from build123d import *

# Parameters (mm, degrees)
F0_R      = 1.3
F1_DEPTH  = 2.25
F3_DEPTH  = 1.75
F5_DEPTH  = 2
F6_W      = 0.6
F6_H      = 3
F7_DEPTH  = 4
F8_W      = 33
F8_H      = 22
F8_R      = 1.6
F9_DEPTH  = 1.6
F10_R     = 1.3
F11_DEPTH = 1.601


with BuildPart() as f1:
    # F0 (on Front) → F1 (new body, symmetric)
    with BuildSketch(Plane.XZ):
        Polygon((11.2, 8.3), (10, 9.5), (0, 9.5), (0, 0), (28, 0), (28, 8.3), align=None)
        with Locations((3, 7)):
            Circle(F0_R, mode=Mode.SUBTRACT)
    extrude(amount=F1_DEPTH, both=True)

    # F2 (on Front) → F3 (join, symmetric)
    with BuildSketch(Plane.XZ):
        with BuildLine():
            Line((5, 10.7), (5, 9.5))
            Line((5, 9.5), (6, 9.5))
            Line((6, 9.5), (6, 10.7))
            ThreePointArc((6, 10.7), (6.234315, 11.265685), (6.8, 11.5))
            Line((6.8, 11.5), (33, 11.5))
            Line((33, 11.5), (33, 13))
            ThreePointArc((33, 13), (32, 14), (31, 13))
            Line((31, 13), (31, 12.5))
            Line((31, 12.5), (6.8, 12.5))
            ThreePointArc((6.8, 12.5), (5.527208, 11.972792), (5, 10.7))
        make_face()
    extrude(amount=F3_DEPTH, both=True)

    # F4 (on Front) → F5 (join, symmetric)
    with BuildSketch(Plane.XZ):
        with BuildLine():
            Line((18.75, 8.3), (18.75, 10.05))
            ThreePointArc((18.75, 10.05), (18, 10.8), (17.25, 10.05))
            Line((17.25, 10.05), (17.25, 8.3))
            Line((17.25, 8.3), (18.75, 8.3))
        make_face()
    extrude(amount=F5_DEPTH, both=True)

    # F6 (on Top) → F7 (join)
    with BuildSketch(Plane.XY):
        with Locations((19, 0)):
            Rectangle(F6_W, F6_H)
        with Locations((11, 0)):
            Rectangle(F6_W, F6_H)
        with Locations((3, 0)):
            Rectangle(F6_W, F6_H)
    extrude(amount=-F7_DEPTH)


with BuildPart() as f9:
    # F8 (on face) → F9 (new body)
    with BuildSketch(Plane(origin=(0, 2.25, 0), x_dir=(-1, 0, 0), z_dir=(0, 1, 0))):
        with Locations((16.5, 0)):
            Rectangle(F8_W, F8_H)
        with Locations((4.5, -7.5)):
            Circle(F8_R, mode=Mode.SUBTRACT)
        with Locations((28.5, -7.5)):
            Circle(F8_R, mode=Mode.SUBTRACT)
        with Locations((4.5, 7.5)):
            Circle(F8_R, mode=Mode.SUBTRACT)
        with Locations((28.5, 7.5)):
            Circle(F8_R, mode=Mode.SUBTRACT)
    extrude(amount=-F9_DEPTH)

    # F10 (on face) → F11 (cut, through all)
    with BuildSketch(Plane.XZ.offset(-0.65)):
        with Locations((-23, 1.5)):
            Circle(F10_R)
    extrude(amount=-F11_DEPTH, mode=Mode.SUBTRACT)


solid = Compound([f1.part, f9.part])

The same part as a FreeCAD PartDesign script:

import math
import FreeCAD as App
import Part
import Sketcher
from FreeCAD import Vector
Q = App.Units.Quantity

doc = App.newDocument("Part")
body = doc.addObject("PartDesign::Body", "Body")

# Sketch on XZ plane
sketch1 = doc.addObject("Sketcher::SketchObject", "Sketch")
body.addObject(sketch1)
sketch1.AttachmentSupport = (doc.XZ_Plane, [""])
sketch1.MapMode = "FlatFace"
sketch1.addGeometry([
    Part.LineSegment(Vector(11.2, 8.3, 0), Vector(10, 9.5, 0)),  # 0
    Part.LineSegment(Vector(10, 9.5, 0), Vector(0, 9.5, 0)),  # 1
    Part.LineSegment(Vector(0, 9.5, 0), Vector(0, 0, 0)),  # 2
    Part.LineSegment(Vector(0, 0, 0), Vector(28, 0, 0)),  # 3
    Part.LineSegment(Vector(28, 0, 0), Vector(28, 8.3, 0)),  # 4
    Part.LineSegment(Vector(28, 8.3, 0), Vector(11.2, 8.3, 0)),  # 5
    Part.Circle(Vector(3, 7, 0), Vector(0, 0, 1), 1.3),  # 6
], False)
sketch1.addConstraint([
    Sketcher.Constraint("Coincident", 0, 2, 1, 1),
    Sketcher.Constraint("Coincident", 1, 2, 2, 1),
    Sketcher.Constraint("Coincident", 2, 2, 3, 1),
    Sketcher.Constraint("Coincident", 3, 2, 4, 1),
    Sketcher.Constraint("Coincident", 4, 2, 5, 1),
    Sketcher.Constraint("Coincident", 5, 2, 0, 1),
    Sketcher.Constraint("Horizontal", 1),
    Sketcher.Constraint("Vertical", 2),
    Sketcher.Constraint("Horizontal", 3),
    Sketcher.Constraint("Vertical", 4),
    Sketcher.Constraint("Horizontal", 5),
    Sketcher.Constraint("Coincident", 2, 2, -1, 1),
    Sketcher.Constraint("Diameter", 6, 2.6),
    Sketcher.Constraint("DistanceX", 1, 2, 1, 1, 10.0),
    Sketcher.Constraint("DistanceX", 3, 1, 3, 2, 28.0),
    Sketcher.Constraint("Angle", 0, Q("135 deg")),
    Sketcher.Constraint("DistanceX", 5, 2, 5, 1, 16.8),
    Sketcher.Constraint("DistanceY", 2, 2, 2, 1, 9.5),
    Sketcher.Constraint("DistanceX", -1, 1, 6, 3, 3.0),
    Sketcher.Constraint("DistanceY", -1, 1, 6, 3, 7.0),
])
pad1 = doc.addObject("PartDesign::Pad", "Pad")
body.addObject(pad1)
pad1.Profile = sketch1
pad1.Length = 4.5
pad1.Midplane = True

# Sketch on XZ plane
sketch2 = doc.addObject("Sketcher::SketchObject", "Sketch001")
body.addObject(sketch2)
sketch2.AttachmentSupport = (doc.XZ_Plane, [""])
sketch2.MapMode = "FlatFace"
sketch2.addGeometry([
    Part.LineSegment(Vector(5, 10.7, 0), Vector(5, 9.5, 0)),  # 0
    Part.LineSegment(Vector(5, 9.5, 0), Vector(6, 9.5, 0)),  # 1
    Part.LineSegment(Vector(6, 9.5, 0), Vector(6, 10.7, 0)),  # 2
    Part.ArcOfCircle(Part.Circle(Vector(6.800001, 10.699999, 0), Vector(0, 0, 1), 0.800001), math.radians(90.000104), math.radians(179.999896)),  # 3
    Part.LineSegment(Vector(6.8, 11.5, 0), Vector(33, 11.5, 0)),  # 4
    Part.LineSegment(Vector(33, 11.5, 0), Vector(33, 13, 0)),  # 5
    Part.ArcOfCircle(Part.Circle(Vector(32, 13, 0), Vector(0, 0, 1), 1), math.radians(0), math.radians(180)),  # 6
    Part.LineSegment(Vector(31, 13, 0), Vector(31, 12.5, 0)),  # 7
    Part.LineSegment(Vector(31, 12.5, 0), Vector(6.8, 12.5, 0)),  # 8
    Part.ArcOfCircle(Part.Circle(Vector(6.800001, 10.699999, 0), Vector(0, 0, 1), 1.800001), math.radians(90.000022), math.radians(179.999978)),  # 9
], False)
sketch2.addConstraint([
    Sketcher.Constraint("Coincident", 0, 2, 1, 1),
    Sketcher.Constraint("Coincident", 1, 2, 2, 1),
    Sketcher.Constraint("Tangent", 2, 2, 3, 2),
    Sketcher.Constraint("Tangent", 3, 1, 4, 1),
    Sketcher.Constraint("Coincident", 4, 2, 5, 1),
    Sketcher.Constraint("Tangent", 5, 2, 6, 1),
    Sketcher.Constraint("Tangent", 6, 2, 7, 1),
    Sketcher.Constraint("Coincident", 7, 2, 8, 1),
    Sketcher.Constraint("Tangent", 8, 2, 9, 1),
    Sketcher.Constraint("Tangent", 9, 2, 0, 1),
    Sketcher.Constraint("Vertical", 0),
    Sketcher.Constraint("Horizontal", 1),
    Sketcher.Constraint("Vertical", 2),
    Sketcher.Constraint("Horizontal", 4),
    Sketcher.Constraint("Vertical", 5),
    Sketcher.Constraint("Vertical", 7),
    Sketcher.Constraint("Horizontal", 8),
    Sketcher.Constraint("Coincident", 9, 3, 3, 3),
    Sketcher.Constraint("Radius", 6, 1.0),
    Sketcher.Constraint("Radius", 3, 0.800001),
    Sketcher.Constraint("Radius", 9, 1.800001),
    Sketcher.Constraint("DistanceX", 4, 1, 4, 2, 26.2),
    Sketcher.Constraint("DistanceY", 0, 2, 0, 1, 1.2),
    Sketcher.Constraint("DistanceY", 5, 1, 5, 2, 1.5),
    Sketcher.Constraint("DistanceX", -1, 1, 6, 3, 32.0),
    Sketcher.Constraint("DistanceY", -1, 1, 6, 3, 13.0),
])
pad2 = doc.addObject("PartDesign::Pad", "Pad001")
body.addObject(pad2)
pad2.Profile = sketch2
pad2.Length = 3.5
pad2.Midplane = True

# Sketch on XZ plane
sketch3 = doc.addObject("Sketcher::SketchObject", "Sketch002")
body.addObject(sketch3)
sketch3.AttachmentSupport = (doc.XZ_Plane, [""])
sketch3.MapMode = "FlatFace"
sketch3.addGeometry([
    Part.LineSegment(Vector(18.75, 8.3, 0), Vector(18.75, 10.05, 0)),
    Part.ArcOfCircle(Part.Circle(Vector(18, 10.05, 0), Vector(0, 0, 1), 0.75), math.radians(0), math.radians(180)),
    Part.LineSegment(Vector(17.25, 10.05, 0), Vector(17.25, 8.3, 0)),
    Part.LineSegment(Vector(17.25, 8.3, 0), Vector(18.75, 8.3, 0)),
], False)
sketch3.addConstraint([
    Sketcher.Constraint("Tangent", 0, 2, 1, 1),
    Sketcher.Constraint("Tangent", 1, 2, 2, 1),
    Sketcher.Constraint("Coincident", 2, 2, 3, 1),
    Sketcher.Constraint("Coincident", 3, 2, 0, 1),
    Sketcher.Constraint("Vertical", 0),
    Sketcher.Constraint("Vertical", 2),
    Sketcher.Constraint("Horizontal", 3),
    Sketcher.Constraint("Radius", 1, 0.75),
    Sketcher.Constraint("DistanceX", -1, 1, 1, 3, 18.0),
    Sketcher.Constraint("DistanceY", 0, 1, 0, 2, 1.75),
    Sketcher.Constraint("DistanceY", -1, 1, 2, 2, 8.3),
])
pad3 = doc.addObject("PartDesign::Pad", "Pad002")
body.addObject(pad3)
pad3.Profile = sketch3
pad3.Length = 4
pad3.Midplane = True

# Sketch on XY plane
sketch4 = doc.addObject("Sketcher::SketchObject", "Sketch003")
body.addObject(sketch4)
sketch4.AttachmentSupport = (doc.XY_Plane, [""])
sketch4.MapMode = "FlatFace"
sketch4.addGeometry([
    Part.LineSegment(Vector(18.7, 1.5, 0), Vector(18.7, -1.5, 0)),  # 0
    Part.LineSegment(Vector(18.7, -1.5, 0), Vector(19.3, -1.5, 0)),  # 1
    Part.LineSegment(Vector(19.3, -1.5, 0), Vector(19.3, 1.5, 0)),  # 2
    Part.LineSegment(Vector(19.3, 1.5, 0), Vector(18.7, 1.5, 0)),  # 3
    Part.LineSegment(Vector(10.7, 1.5, 0), Vector(10.7, -1.5, 0)),  # 4
    Part.LineSegment(Vector(10.7, -1.5, 0), Vector(11.3, -1.5, 0)),  # 5
    Part.LineSegment(Vector(11.3, -1.5, 0), Vector(11.3, 1.5, 0)),  # 6
    Part.LineSegment(Vector(11.3, 1.5, 0), Vector(10.7, 1.5, 0)),  # 7
    Part.LineSegment(Vector(2.7, 1.5, 0), Vector(2.7, -1.5, 0)),  # 8
    Part.LineSegment(Vector(2.7, -1.5, 0), Vector(3.3, -1.5, 0)),  # 9
    Part.LineSegment(Vector(3.3, -1.5, 0), Vector(3.3, 1.5, 0)),  # 10
    Part.LineSegment(Vector(3.3, 1.5, 0), Vector(2.7, 1.5, 0)),  # 11
], False)
sketch4.addConstraint([
    Sketcher.Constraint("Coincident", 0, 2, 1, 1),
    Sketcher.Constraint("Coincident", 1, 2, 2, 1),
    Sketcher.Constraint("Coincident", 2, 2, 3, 1),
    Sketcher.Constraint("Coincident", 3, 2, 0, 1),
    Sketcher.Constraint("Coincident", 4, 2, 5, 1),
    Sketcher.Constraint("Coincident", 5, 2, 6, 1),
    Sketcher.Constraint("Coincident", 6, 2, 7, 1),
    Sketcher.Constraint("Coincident", 7, 2, 4, 1),
    Sketcher.Constraint("Coincident", 8, 2, 9, 1),
    Sketcher.Constraint("Coincident", 9, 2, 10, 1),
    Sketcher.Constraint("Coincident", 10, 2, 11, 1),
    Sketcher.Constraint("Coincident", 11, 2, 8, 1),
    Sketcher.Constraint("Vertical", 0),
    Sketcher.Constraint("Horizontal", 1),
    Sketcher.Constraint("Vertical", 2),
    Sketcher.Constraint("Horizontal", 3),
    Sketcher.Constraint("Vertical", 4),
    Sketcher.Constraint("Horizontal", 5),
    Sketcher.Constraint("Vertical", 6),
    Sketcher.Constraint("Horizontal", 7),
    Sketcher.Constraint("Vertical", 8),
    Sketcher.Constraint("Horizontal", 9),
    Sketcher.Constraint("Vertical", 10),
    Sketcher.Constraint("Horizontal", 11),
    Sketcher.Constraint("Horizontal", 1, 2, 4, 2),
    Sketcher.Constraint("Horizontal", 3, 2, 6, 2),
    Sketcher.Constraint("Horizontal", 5, 2, 8, 2),
    Sketcher.Constraint("Horizontal", 7, 2, 10, 2),
    Sketcher.Constraint("Equal", 3, 5),
    Sketcher.Constraint("Equal", 7, 9),
    Sketcher.Constraint("DistanceY", 0, 2, 0, 1, 3.0),
    Sketcher.Constraint("DistanceX", 1, 1, 1, 2, 0.6),
    Sketcher.Constraint("DistanceX", 4, 2, 0, 2, 8.0),
    Sketcher.Constraint("DistanceX", 8, 2, 4, 2, 8.0),
    Sketcher.Constraint("DistanceX", -1, 1, 0, 2, 18.7),
    Sketcher.Constraint("DistanceY", 0, 2, -1, 1, 1.5),
])
pad4 = doc.addObject("PartDesign::Pad", "Pad003")
body.addObject(pad4)
pad4.Profile = sketch4
pad4.Length = 4
pad4.Reversed = True
body2 = doc.addObject("PartDesign::Body", "Body001")

# Sketch on XZ plane
sketch5 = doc.addObject("Sketcher::SketchObject", "Sketch004")
body2.addObject(sketch5)
sketch5.AttachmentSupport = (doc.getObject("XZ_Plane001"), [""])
sketch5.MapMode = "FlatFace"
sketch5.AttachmentOffset = App.Placement(Vector(0, 0, -2.25), App.Rotation())
sketch5.addGeometry([
    Part.LineSegment(Vector(0, 11, 0), Vector(0, -11, 0)),  # 0
    Part.LineSegment(Vector(0, -11, 0), Vector(-33, -11, 0)),  # 1
    Part.LineSegment(Vector(-33, -11, 0), Vector(-33, 11, 0)),  # 2
    Part.LineSegment(Vector(-33, 11, 0), Vector(0, 11, 0)),  # 3
    Part.Circle(Vector(-4.5, -7.5, 0), Vector(0, 0, 1), 1.6),  # 4
    Part.Circle(Vector(-28.5, -7.5, 0), Vector(0, 0, 1), 1.6),  # 5
    Part.Circle(Vector(-4.5, 7.5, 0), Vector(0, 0, 1), 1.6),  # 6
    Part.Circle(Vector(-28.5, 7.5, 0), Vector(0, 0, 1), 1.6),  # 7
], False)
sketch5.addConstraint([
    Sketcher.Constraint("Coincident", 0, 2, 1, 1),
    Sketcher.Constraint("Coincident", 1, 2, 2, 1),
    Sketcher.Constraint("Coincident", 2, 2, 3, 1),
    Sketcher.Constraint("Coincident", 3, 2, 0, 1),
    Sketcher.Constraint("Vertical", 0),
    Sketcher.Constraint("Horizontal", 1),
    Sketcher.Constraint("Vertical", 2),
    Sketcher.Constraint("Horizontal", 3),
    Sketcher.Constraint("Equal", 4, 5),
    Sketcher.Constraint("Equal", 5, 6),
    Sketcher.Constraint("Equal", 6, 7),
    Sketcher.Constraint("Symmetric", 0, 2, 3, 2, -1, 1),
    Sketcher.Constraint("Symmetric", 4, 3, 6, 3, -1),
    Sketcher.Constraint("Symmetric", 5, 3, 7, 3, -1),
    Sketcher.Constraint("Horizontal", 4, 3, 5, 3),
    Sketcher.Constraint("Diameter", 4, 3.2),
    Sketcher.Constraint("DistanceX", 1, 2, 1, 1, 33.0),
    Sketcher.Constraint("DistanceY", 0, 2, 0, 1, 22.0),
    Sketcher.Constraint("DistanceX", 5, 3, 4, 3, 24.0),
    Sketcher.Constraint("DistanceY", 4, 3, 6, 3, 15.0),
    Sketcher.Constraint("DistanceX", 4, 3, -1, 1, 4.5),
])
pad5 = doc.addObject("PartDesign::Pad", "Pad004")
body2.addObject(pad5)
pad5.Profile = sketch5
pad5.Length = 1.6

# Sketch on XZ plane
sketch6 = doc.addObject("Sketcher::SketchObject", "Sketch005")
body2.addObject(sketch6)
sketch6.AttachmentSupport = (doc.getObject("XZ_Plane001"), [""])
sketch6.MapMode = "FlatFace"
sketch6.AttachmentOffset = App.Placement(Vector(0, 0, -0.65), App.Rotation())
sketch6.addGeometry(Part.Circle(Vector(-23, 1.5, 0), Vector(0, 0, 1), 1.3), False)
sketch6.addConstraint([
    Sketcher.Constraint("Diameter", 0, 2.6),
    Sketcher.Constraint("DistanceX", 0, 3, -1, 1, 23.0),
    Sketcher.Constraint("DistanceY", -1, 1, 0, 3, 1.5),
])
pocket1 = doc.addObject("PartDesign::Pocket", "Pocket")
body2.addObject(pocket1)
pocket1.Profile = sketch6
pocket1.Type = "ThroughAll"

doc.recompute()
